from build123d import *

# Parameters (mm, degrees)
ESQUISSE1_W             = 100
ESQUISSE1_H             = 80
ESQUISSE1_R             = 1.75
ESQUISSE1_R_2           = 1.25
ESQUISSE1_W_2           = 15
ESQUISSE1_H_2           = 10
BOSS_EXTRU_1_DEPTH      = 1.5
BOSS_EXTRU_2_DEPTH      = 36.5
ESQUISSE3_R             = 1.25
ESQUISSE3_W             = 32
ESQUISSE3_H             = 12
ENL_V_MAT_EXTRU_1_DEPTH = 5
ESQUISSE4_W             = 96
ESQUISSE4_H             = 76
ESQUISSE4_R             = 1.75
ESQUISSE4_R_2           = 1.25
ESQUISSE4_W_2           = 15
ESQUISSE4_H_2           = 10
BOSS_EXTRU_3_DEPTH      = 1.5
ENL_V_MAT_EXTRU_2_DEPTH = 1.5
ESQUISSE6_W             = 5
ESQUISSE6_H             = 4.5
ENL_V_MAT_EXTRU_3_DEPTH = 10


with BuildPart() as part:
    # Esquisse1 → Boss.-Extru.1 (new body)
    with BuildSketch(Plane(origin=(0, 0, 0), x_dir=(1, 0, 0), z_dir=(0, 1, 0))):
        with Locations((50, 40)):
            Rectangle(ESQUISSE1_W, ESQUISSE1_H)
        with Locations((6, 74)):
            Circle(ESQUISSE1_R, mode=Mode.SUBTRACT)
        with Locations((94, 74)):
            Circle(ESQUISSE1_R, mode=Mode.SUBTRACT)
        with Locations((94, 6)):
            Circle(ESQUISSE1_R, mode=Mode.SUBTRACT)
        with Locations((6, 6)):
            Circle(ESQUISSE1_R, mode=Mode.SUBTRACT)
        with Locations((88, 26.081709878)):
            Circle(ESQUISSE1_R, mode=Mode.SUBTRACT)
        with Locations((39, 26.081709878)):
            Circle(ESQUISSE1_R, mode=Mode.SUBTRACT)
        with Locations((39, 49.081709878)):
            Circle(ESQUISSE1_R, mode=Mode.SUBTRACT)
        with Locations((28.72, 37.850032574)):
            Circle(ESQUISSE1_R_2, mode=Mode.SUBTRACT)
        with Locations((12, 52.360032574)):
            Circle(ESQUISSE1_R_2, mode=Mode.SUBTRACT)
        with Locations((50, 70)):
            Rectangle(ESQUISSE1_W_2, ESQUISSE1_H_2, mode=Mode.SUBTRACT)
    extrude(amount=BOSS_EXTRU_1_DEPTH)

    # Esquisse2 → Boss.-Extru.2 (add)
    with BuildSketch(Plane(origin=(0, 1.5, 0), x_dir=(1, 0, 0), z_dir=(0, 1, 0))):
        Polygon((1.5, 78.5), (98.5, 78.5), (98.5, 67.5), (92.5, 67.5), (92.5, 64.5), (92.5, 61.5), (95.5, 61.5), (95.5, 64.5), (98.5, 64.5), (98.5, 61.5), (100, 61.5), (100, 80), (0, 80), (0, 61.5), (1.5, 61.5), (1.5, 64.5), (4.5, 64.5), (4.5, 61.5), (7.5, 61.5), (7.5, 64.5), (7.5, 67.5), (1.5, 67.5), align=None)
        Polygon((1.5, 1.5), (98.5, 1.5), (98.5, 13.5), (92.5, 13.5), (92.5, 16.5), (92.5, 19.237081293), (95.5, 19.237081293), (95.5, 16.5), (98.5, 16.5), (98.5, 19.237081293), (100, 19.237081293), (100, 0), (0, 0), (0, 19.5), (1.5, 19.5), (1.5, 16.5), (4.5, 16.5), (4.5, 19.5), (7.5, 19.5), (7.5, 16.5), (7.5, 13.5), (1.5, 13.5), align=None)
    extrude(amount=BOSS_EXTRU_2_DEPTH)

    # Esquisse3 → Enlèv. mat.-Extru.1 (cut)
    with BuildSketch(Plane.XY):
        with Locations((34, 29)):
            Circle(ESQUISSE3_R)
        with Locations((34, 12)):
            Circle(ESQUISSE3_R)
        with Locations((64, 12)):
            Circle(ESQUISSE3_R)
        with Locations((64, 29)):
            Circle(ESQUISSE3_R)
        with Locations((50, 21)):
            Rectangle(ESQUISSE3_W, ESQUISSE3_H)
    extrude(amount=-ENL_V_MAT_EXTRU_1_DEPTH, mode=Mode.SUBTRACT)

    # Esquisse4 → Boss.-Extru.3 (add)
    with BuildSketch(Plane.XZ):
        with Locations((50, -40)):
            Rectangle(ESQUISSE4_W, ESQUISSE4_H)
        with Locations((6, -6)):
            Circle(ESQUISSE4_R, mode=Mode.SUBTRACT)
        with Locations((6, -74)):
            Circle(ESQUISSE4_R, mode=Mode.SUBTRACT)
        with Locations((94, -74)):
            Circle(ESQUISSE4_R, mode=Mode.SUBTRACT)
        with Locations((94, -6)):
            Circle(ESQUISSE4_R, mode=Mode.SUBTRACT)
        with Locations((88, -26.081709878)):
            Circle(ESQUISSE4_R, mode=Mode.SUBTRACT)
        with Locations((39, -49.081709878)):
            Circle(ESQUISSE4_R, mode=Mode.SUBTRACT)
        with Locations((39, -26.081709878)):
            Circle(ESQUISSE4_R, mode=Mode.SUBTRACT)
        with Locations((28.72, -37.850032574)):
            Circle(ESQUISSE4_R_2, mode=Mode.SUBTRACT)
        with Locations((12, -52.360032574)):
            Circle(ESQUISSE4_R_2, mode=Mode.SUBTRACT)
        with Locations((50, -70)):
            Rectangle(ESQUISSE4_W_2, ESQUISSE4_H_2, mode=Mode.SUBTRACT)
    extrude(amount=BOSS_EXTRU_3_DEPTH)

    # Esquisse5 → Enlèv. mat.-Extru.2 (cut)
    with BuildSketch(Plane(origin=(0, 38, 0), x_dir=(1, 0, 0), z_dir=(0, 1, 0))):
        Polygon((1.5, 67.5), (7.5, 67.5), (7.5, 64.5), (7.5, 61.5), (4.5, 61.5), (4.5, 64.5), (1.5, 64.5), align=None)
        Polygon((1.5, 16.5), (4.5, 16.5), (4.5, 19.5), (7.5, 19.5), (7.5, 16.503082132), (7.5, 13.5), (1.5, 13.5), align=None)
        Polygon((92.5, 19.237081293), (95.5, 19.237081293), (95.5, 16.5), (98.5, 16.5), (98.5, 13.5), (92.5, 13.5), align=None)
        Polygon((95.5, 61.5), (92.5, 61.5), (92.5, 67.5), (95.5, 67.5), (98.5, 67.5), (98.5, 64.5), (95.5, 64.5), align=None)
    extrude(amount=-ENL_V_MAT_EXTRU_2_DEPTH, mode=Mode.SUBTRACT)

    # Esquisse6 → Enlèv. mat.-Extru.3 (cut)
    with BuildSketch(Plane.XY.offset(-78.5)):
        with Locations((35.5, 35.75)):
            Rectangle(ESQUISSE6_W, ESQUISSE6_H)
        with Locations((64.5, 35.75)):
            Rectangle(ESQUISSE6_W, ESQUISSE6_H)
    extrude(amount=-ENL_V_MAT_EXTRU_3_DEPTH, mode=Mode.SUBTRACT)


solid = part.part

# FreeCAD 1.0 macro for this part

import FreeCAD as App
import Part
import Sketcher
from FreeCAD import Vector
Q = App.Units.Quantity


def add_polygon(sketch, points):
    """Adds a closed chain of lines whose ends are joined by coincident constraints."""
    first, n = sketch.GeometryCount, len(points)
    for a, b in zip(points, points[1:] + points[:1]):
        sketch.addGeometry(Part.LineSegment(App.Vector(*a, 0), App.Vector(*b, 0)), False)
    for i in range(n):
        sketch.addConstraint(Sketcher.Constraint("Coincident", first + i, 2, first + (i + 1) % n, 1))

doc = App.newDocument("Part")
body = doc.addObject("PartDesign::Body", "Body")

sketch1 = doc.addObject("Sketcher::SketchObject", "Sketch")
body.addObject(sketch1)
sketch1.AttachmentSupport = (doc.XZ_Plane, [""])
sketch1.MapMode = "FlatFace"
add_polygon(sketch1, [(0, -80), (0, 0), (100, 0), (100, -80)])
sketch1.addGeometry(Part.Circle(Vector(6, -6, 0), Vector(0, 0, 1), 1.8), False)
sketch1.addGeometry(Part.Circle(Vector(39, -26.1, 0), Vector(0, 0, 1), 1.8), False)
sketch1.addGeometry(Part.Circle(Vector(28.7, -37.9, 0), Vector(0, 0, 1), 1.2), False)
sketch1.addGeometry(Part.Circle(Vector(94, -6, 0), Vector(0, 0, 1), 1.8), False)
sketch1.addGeometry(Part.Circle(Vector(88, -26.1, 0), Vector(0, 0, 1), 1.8), False)
sketch1.addGeometry(Part.Circle(Vector(12, -52.4, 0), Vector(0, 0, 1), 1.2), False)
sketch1.addGeometry(Part.Circle(Vector(39, -49.1, 0), Vector(0, 0, 1), 1.8), False)
sketch1.addGeometry(Part.Circle(Vector(6, -74, 0), Vector(0, 0, 1), 1.8), False)
add_polygon(sketch1, [(57.5, -65), (42.5, -65), (42.5, -75), (57.5, -75)])
sketch1.addGeometry(Part.Circle(Vector(94, -74, 0), Vector(0, 0, 1), 1.8), False)
sketch1.addConstraint([
    Sketcher.Constraint("Vertical", 0),
    Sketcher.Constraint("Horizontal", 1),
    Sketcher.Constraint("Vertical", 2),
    Sketcher.Constraint("Horizontal", 3),
    Sketcher.Constraint("Horizontal", 12),
    Sketcher.Constraint("Vertical", 13),
    Sketcher.Constraint("Horizontal", 14),
    Sketcher.Constraint("Vertical", 15),
    Sketcher.Constraint("Coincident", 0, 2, -1, 1),
    Sketcher.Constraint("Equal", 4, 5),
    Sketcher.Constraint("Equal", 5, 7),
    Sketcher.Constraint("Equal", 7, 8),
    Sketcher.Constraint("Equal", 6, 9),
    Sketcher.Constraint("Equal", 8, 10),
    Sketcher.Constraint("Equal", 10, 11),
    Sketcher.Constraint("Equal", 11, 16),
    Sketcher.Constraint("Horizontal", 4, 3, 7, 3),
    Sketcher.Constraint("Horizontal", 5, 3, 8, 3),
    Sketcher.Constraint("Horizontal", 11, 3, 16, 3),
    Sketcher.Constraint("Vertical", 5, 3, 10, 3),
    Sketcher.Constraint("Vertical", 4, 3, 11, 3),
    Sketcher.Constraint("Vertical", 7, 3, 16, 3),
    Sketcher.Constraint("Diameter", 4, Q("3.5 mm")),
    Sketcher.Constraint("Diameter", 6, Q("2.5 mm")),
    Sketcher.Constraint("DistanceX", 1, 1, 1, 2, Q("100 mm")),
    Sketcher.Constraint("DistanceX", 12, 2, 12, 1, Q("15 mm")),
    Sketcher.Constraint("DistanceY", 0, 1, 0, 2, Q("80 mm")),
    Sketcher.Constraint("DistanceY", 13, 2, 13, 1, Q("10 mm")),
    Sketcher.Constraint("DistanceX", -1, 1, 4, 3, Q("6 mm")),
    Sketcher.Constraint("DistanceY", 4, 3, -1, 1, Q("6 mm")),
    Sketcher.Constraint("DistanceX", -1, 1, 5, 3, Q("39 mm")),
    Sketcher.Constraint("DistanceX", -1, 1, 7, 3, Q("94 mm")),
    Sketcher.Constraint("DistanceX", -1, 1, 8, 3, Q("88 mm")),
    Sketcher.Constraint("DistanceX", -1, 1, 9, 3, Q("12 mm")),
    Sketcher.Constraint("DistanceY", 11, 3, -1, 1, Q("74 mm")),
    Sketcher.Constraint("DistanceY", 12, 2, -1, 1, Q("65 mm")),
    Sketcher.Constraint("DistanceY", 10, 3, 5, 3, Q("23 mm")),
    Sketcher.Constraint("DistanceX", -1, 1, 12, 2, Q("42.5 mm")),
    Sketcher.Constraint("DistanceX", -1, 1, 6, 3, Q("28.72 mm")),
    Sketcher.Constraint("DistanceY", 9, 3, 6, 3, Q("14.51 mm")),
    Sketcher.Constraint("DistanceY", 5, 3, -1, 1, Q("26.08171 mm")),
    Sketcher.Constraint("DistanceY", 6, 3, -1, 1, Q("37.850033 mm")),
])
pad1 = doc.addObject("PartDesign::Pad", "Pad")
body.addObject(pad1)
pad1.Profile = sketch1
pad1.Length = 1.5
pad1.Reversed = True

sketch2 = doc.addObject("Sketcher::SketchObject", "Sketch001")
body.addObject(sketch2)
sketch2.AttachmentSupport = (doc.XZ_Plane, [""])
sketch2.MapMode = "FlatFace"
sketch2.AttachmentOffset = App.Placement(Vector(0, 0, -1.5), App.Rotation())
add_polygon(sketch2, [(1.5, -78.5), (98.5, -78.5), (98.5, -67.5), (92.5, -67.5), (92.5, -61.5), (95.5, -61.5), (95.5, -64.5), (98.5, -64.5), (98.5, -61.5), (100, -61.5), (100, -80), (0, -80), (0, -61.5), (1.5, -61.5), (1.5, -64.5), (4.5, -64.5), (4.5, -61.5), (7.5, -61.5), (7.5, -67.5), (1.5, -67.5)])
add_polygon(sketch2, [(98.5, -1.5), (1.5, -1.5), (1.5, -13.5), (7.5, -13.5), (7.5, -19.5), (4.5, -19.5), (4.5, -16.5), (1.5, -16.5), (1.5, -19.5), (0, -19.5), (0, 0), (100, 0), (100, -19.2), (98.5, -19.2), (98.5, -16.5), (95.5, -16.5), (95.5, -19.2), (92.5, -19.2), (92.5, -13.5), (98.5, -13.5)])
sketch2.addConstraint([
    Sketcher.Constraint("Horizontal", 0),
    Sketcher.Constraint("Vertical", 1),
    Sketcher.Constraint("Horizontal", 2),
    Sketcher.Constraint("Vertical", 3),
    Sketcher.Constraint("Horizontal", 4),
    Sketcher.Constraint("Vertical", 5),
    Sketcher.Constraint("Horizontal", 6),
    Sketcher.Constraint("Vertical", 7),
    Sketcher.Constraint("Horizontal", 8),
    Sketcher.Constraint("Vertical", 9),
    Sketcher.Constraint("Horizontal", 10),
    Sketcher.Constraint("Vertical", 11),
    Sketcher.Constraint("Horizontal", 12),
    Sketcher.Constraint("Vertical", 13),
    Sketcher.Constraint("Horizontal", 14),
    Sketcher.Constraint("Vertical", 15),
    Sketcher.Constraint("Horizontal", 16),
    Sketcher.Constraint("Vertical", 17),
    Sketcher.Constraint("Horizontal", 18),
    Sketcher.Constraint("Vertical", 19),
    Sketcher.Constraint("Horizontal", 20),
    Sketcher.Constraint("Vertical", 21),
    Sketcher.Constraint("Horizontal", 22),
    Sketcher.Constraint("Vertical", 23),
    Sketcher.Constraint("Horizontal", 24),
    Sketcher.Constraint("Vertical", 25),
    Sketcher.Constraint("Horizontal", 26),
    Sketcher.Constraint("Vertical", 27),
    Sketcher.Constraint("Horizontal", 28),
    Sketcher.Constraint("Vertical", 29),
    Sketcher.Constraint("Horizontal", 30),
    Sketcher.Constraint("Vertical", 31),
    Sketcher.Constraint("Horizontal", 32),
    Sketcher.Constraint("Vertical", 33),
    Sketcher.Constraint("Horizontal", 34),
    Sketcher.Constraint("Vertical", 35),
    Sketcher.Constraint("Horizontal", 36),
    Sketcher.Constraint("Vertical", 37),
    Sketcher.Constraint("Horizontal", 38),
    Sketcher.Constraint("Vertical", 39),
    Sketcher.Constraint("Coincident", 29, 2, -1, 1),
    Sketcher.Constraint("PointOnObject", 10, 2, -2),
    Sketcher.Constraint("Horizontal", 4, 2, 7, 2),
    Sketcher.Constraint("Horizontal", 8, 2, 11, 2),
    Sketcher.Constraint("Horizontal", 6, 2, 13, 2),
    Sketcher.Constraint("Horizontal", 12, 2, 15, 2),
    Sketcher.Constraint("Horizontal", 2, 2, 17, 2),
    Sketcher.Constraint("Horizontal", 24, 2, 27, 2),
    Sketcher.Constraint("Horizontal", 26, 2, 33, 2),
    Sketcher.Constraint("Horizontal", 32, 2, 35, 2),
    Sketcher.Constraint("Horizontal", 22, 2, 37, 2),
    Sketcher.Constraint("Vertical", 1, 2, 6, 2),
    Sketcher.Constraint("Vertical", 13, 2, 18, 2),
    Sketcher.Constraint("Vertical", 19, 2, 20, 2),
    Sketcher.Constraint("Vertical", 17, 2, 22, 2),
    Sketcher.Constraint("Vertical", 15, 2, 24, 2),
    Sketcher.Constraint("Vertical", 21, 2, 26, 2),
    Sketcher.Constraint("Vertical", 9, 2, 30, 2),
    Sketcher.Constraint("Vertical", 7, 2, 32, 2),
    Sketcher.Constraint("Vertical", 5, 2, 34, 2),
    Sketcher.Constraint("Vertical", 3, 2, 36, 2),
    Sketcher.Constraint("Vertical", 33, 2, 38, 2),
    Sketcher.Constraint("Equal", 4, 6),
    Sketcher.Constraint("Equal", 8, 12),
    Sketcher.Constraint("Equal", 6, 14),
    Sketcher.Constraint("Equal", 14, 16),
    Sketcher.Constraint("Equal", 38, 3),
    Sketcher.Constraint("Equal", 36, 5),
    Sketcher.Constraint("Equal", 17, 23),
    Sketcher.Constraint("Equal", 15, 25),
    Sketcher.Constraint("DistanceX", 0, 1, 0, 2, Q("97 mm")),
    Sketcher.Constraint("DistanceX", 2, 2, 2, 1, Q("6 mm")),
    Sketcher.Constraint("DistanceX", 10, 2, 10, 1, Q("100 mm")),
    Sketcher.Constraint("DistanceY", 1, 1, 1, 2, Q("11 mm")),
    Sketcher.Constraint("DistanceY", 21, 2, 21, 1, Q("12 mm")),
    Sketcher.Constraint("DistanceY", 9, 2, 9, 1, Q("18.5 mm")),
    Sketcher.Constraint("DistanceY", 29, 1, 29, 2, Q("19.5 mm")),
    Sketcher.Constraint("DistanceY", 9, 2, -1, 1, Q("80 mm")),
    Sketcher.Constraint("DistanceY", 31, 2, 31, 1, Q("19.237081 mm")),
])
pad2 = doc.addObject("PartDesign::Pad", "Pad001")
body.addObject(pad2)
pad2.Profile = sketch2
pad2.Length = 36.5
pad2.Reversed = True

sketch3 = doc.addObject("Sketcher::SketchObject", "Sketch002")
body.addObject(sketch3)
sketch3.AttachmentSupport = (doc.XY_Plane, [""])
sketch3.MapMode = "FlatFace"
sketch3.addGeometry(Part.Circle(Vector(34, 29, 0), Vector(0, 0, 1), 1.2), False)
sketch3.addGeometry(Part.Circle(Vector(34, 12, 0), Vector(0, 0, 1), 1.2), False)
sketch3.addGeometry(Part.Circle(Vector(64, 12, 0), Vector(0, 0, 1), 1.2), False)
sketch3.addGeometry(Part.Circle(Vector(64, 29, 0), Vector(0, 0, 1), 1.2), False)
add_polygon(sketch3, [(34, 27), (34, 15), (66, 15), (66, 27)])
sketch3.addConstraint([
    Sketcher.Constraint("Vertical", 4),
    Sketcher.Constraint("Horizontal", 5),
    Sketcher.Constraint("Vertical", 6),
    Sketcher.Constraint("Horizontal", 7),
    Sketcher.Constraint("Equal", 0, 1),
    Sketcher.Constraint("Equal", 1, 2),
    Sketcher.Constraint("Equal", 2, 3),
    Sketcher.Constraint("Horizontal", 1, 3, 2, 3),
    Sketcher.Constraint("Horizontal", 0, 3, 3, 3),
    Sketcher.Constraint("Vertical", 0, 3, 1, 3),
    Sketcher.Constraint("Vertical", 2, 3, 3, 3),
    Sketcher.Constraint("Vertical", 1, 3, 4, 2),
    Sketcher.Constraint("Diameter", 0, Q("2.5 mm")),
    Sketcher.Constraint("DistanceX", 5, 1, 5, 2, Q("32 mm")),
    Sketcher.Constraint("DistanceY", 4, 2, 4, 1, Q("12 mm")),
    Sketcher.Constraint("DistanceX", -1, 1, 0, 3, Q("34 mm")),
    Sketcher.Constraint("DistanceY", -1, 1, 0, 3, Q("29 mm")),
    Sketcher.Constraint("DistanceY", -1, 1, 1, 3, Q("12 mm")),
    Sketcher.Constraint("DistanceX", -1, 1, 2, 3, Q("64 mm")),
    Sketcher.Constraint("DistanceY", -1, 1, 4, 2, Q("15 mm")),
])
pocket1 = doc.addObject("PartDesign::Pocket", "Pocket")
body.addObject(pocket1)
pocket1.Profile = sketch3
pocket1.Length = 5

sketch4 = doc.addObject("Sketcher::SketchObject", "Sketch003")
body.addObject(sketch4)
sketch4.AttachmentSupport = (doc.XZ_Plane, [""])
sketch4.MapMode = "FlatFace"
add_polygon(sketch4, [(2, -2), (2, -78), (98, -78), (98, -2)])
sketch4.addGeometry(Part.Circle(Vector(6, -74, 0), Vector(0, 0, 1), 1.8), False)
sketch4.addGeometry(Part.Circle(Vector(12, -52.4, 0), Vector(0, 0, 1), 1.2), False)
sketch4.addGeometry(Part.Circle(Vector(39, -49.1, 0), Vector(0, 0, 1), 1.8), False)
add_polygon(sketch4, [(57.5, -75), (42.5, -75), (42.5, -65), (57.5, -65)])
sketch4.addGeometry(Part.Circle(Vector(94, -74, 0), Vector(0, 0, 1), 1.8), False)
sketch4.addGeometry(Part.Circle(Vector(28.7, -37.9, 0), Vector(0, 0, 1), 1.2), False)
sketch4.addGeometry(Part.Circle(Vector(39, -26.1, 0), Vector(0, 0, 1), 1.8), False)
sketch4.addGeometry(Part.Circle(Vector(6, -6, 0), Vector(0, 0, 1), 1.8), False)
sketch4.addGeometry(Part.Circle(Vector(88, -26.1, 0), Vector(0, 0, 1), 1.8), False)
sketch4.addGeometry(Part.Circle(Vector(94, -6, 0), Vector(0, 0, 1), 1.8), False)
sketch4.addConstraint([
    Sketcher.Constraint("Vertical", 0),
    Sketcher.Constraint("Horizontal", 1),
    Sketcher.Constraint("Vertical", 2),
    Sketcher.Constraint("Horizontal", 3),
    Sketcher.Constraint("Horizontal", 7),
    Sketcher.Constraint("Vertical", 8),
    Sketcher.Constraint("Horizontal", 9),
    Sketcher.Constraint("Vertical", 10),
    Sketcher.Constraint("Equal", 4, 6),
    Sketcher.Constraint("Equal", 6, 11),
    Sketcher.Constraint("Equal", 5, 12),
    Sketcher.Constraint("Equal", 11, 13),
    Sketcher.Constraint("Equal", 13, 14),
    Sketcher.Constraint("Equal", 14, 15),
    Sketcher.Constraint("Equal", 15, 16),
    Sketcher.Constraint("Horizontal", 4, 3, 11, 3),
    Sketcher.Constraint("Horizontal", 13, 3, 15, 3),
    Sketcher.Constraint("Horizontal", 14, 3, 16, 3),
    Sketcher.Constraint("Vertical", 6, 3, 13, 3),
    Sketcher.Constraint("Vertical", 4, 3, 14, 3),
    Sketcher.Constraint("Vertical", 11, 3, 16, 3),
    Sketcher.Constraint("Diameter", 4, Q("3.5 mm")),
    Sketcher.Constraint("Diameter", 5, Q("2.5 mm")),
    Sketcher.Constraint("DistanceX", 1, 1, 1, 2, Q("96 mm")),
    Sketcher.Constraint("DistanceX", 7, 2, 7, 1, Q("15 mm")),
    Sketcher.Constraint("DistanceY", 0, 2, 0, 1, Q("76 mm")),
    Sketcher.Constraint("DistanceY", 8, 1, 8, 2, Q("10 mm")),
    Sketcher.Constraint("DistanceX", -1, 1, 4, 3, Q("6 mm")),
    Sketcher.Constraint("DistanceY", 4, 3, -1, 1, Q("74 mm")),
    Sketcher.Constraint("DistanceX", -1, 1, 5, 3, Q("12 mm")),
    Sketcher.Constraint("DistanceX", -1, 1, 6, 3, Q("39 mm")),
    Sketcher.Constraint("DistanceX", -1, 1, 11, 3, Q("94 mm")),
    Sketcher.Constraint("DistanceY", 14, 3, -1, 1, Q("6 mm")),
    Sketcher.Constraint("DistanceX", -1, 1, 15, 3, Q("88 mm")),
    Sketcher.Constraint("DistanceX", -1, 1, 0, 2, Q("2 mm")),
    Sketcher.Constraint("DistanceY", 0, 2, -1, 1, Q("78 mm")),
    Sketcher.Constraint("DistanceY", 7, 2, -1, 1, Q("75 mm")),
    Sketcher.Constraint("DistanceY", 6, 3, 13, 3, Q("23 mm")),
    Sketcher.Constraint("DistanceX", -1, 1, 7, 2, Q("42.5 mm")),
    Sketcher.Constraint("DistanceX", -1, 1, 12, 3, Q("28.72 mm")),
    Sketcher.Constraint("DistanceY", 5, 3, 12, 3, Q("14.51 mm")),
    Sketcher.Constraint("DistanceY", 6, 3, -1, 1, Q("49.08171 mm")),
    Sketcher.Constraint("DistanceY", 5, 3, -1, 1, Q("52.360033 mm")),
])
pad3 = doc.addObject("PartDesign::Pad", "Pad002")
body.addObject(pad3)
pad3.Profile = sketch4
pad3.Length = 1.5

sketch5 = doc.addObject("Sketcher::SketchObject", "Sketch004")
body.addObject(sketch5)
sketch5.AttachmentSupport = (doc.XZ_Plane, [""])
sketch5.MapMode = "FlatFace"
sketch5.AttachmentOffset = App.Placement(Vector(0, 0, -38), App.Rotation())
add_polygon(sketch5, [(7.5, -67.5), (1.5, -67.5), (1.5, -64.5), (4.5, -64.5), (4.5, -61.5), (7.5, -61.5)])
add_polygon(sketch5, [(4.5, -16.5), (1.5, -16.5), (1.5, -13.5), (7.5, -13.5), (7.5, -19.5), (4.5, -19.5)])
add_polygon(sketch5, [(95.5, -19.2), (92.5, -19.2), (92.5, -13.5), (98.5, -13.5), (98.5, -16.5), (95.5, -16.5)])
add_polygon(sketch5, [(92.5, -61.5), (95.5, -61.5), (95.5, -64.5), (98.5, -64.5), (98.5, -67.5), (92.5, -67.5)])
sketch5.addConstraint([
    Sketcher.Constraint("Horizontal", 0),
    Sketcher.Constraint("Vertical", 1),
    Sketcher.Constraint("Horizontal", 2),
    Sketcher.Constraint("Vertical", 3),
    Sketcher.Constraint("Horizontal", 4),
    Sketcher.Constraint("Vertical", 5),
    Sketcher.Constraint("Horizontal", 6),
    Sketcher.Constraint("Vertical", 7),
    Sketcher.Constraint("Horizontal", 8),
    Sketcher.Constraint("Vertical", 9),
    Sketcher.Constraint("Horizontal", 10),
    Sketcher.Constraint("Vertical", 11),
    Sketcher.Constraint("Horizontal", 12),
    Sketcher.Constraint("Vertical", 13),
    Sketcher.Constraint("Horizontal", 14),
    Sketcher.Constraint("Vertical", 15),
    Sketcher.Constraint("Horizontal", 16),
    Sketcher.Constraint("Vertical", 17),
    Sketcher.Constraint("Horizontal", 18),
    Sketcher.Constraint("Vertical", 19),
    Sketcher.Constraint("Horizontal", 20),
    Sketcher.Constraint("Vertical", 21),
    Sketcher.Constraint("Horizontal", 22),
    Sketcher.Constraint("Vertical", 23),
    Sketcher.Constraint("Horizontal", 8, 2, 13, 2),
    Sketcher.Constraint("Horizontal", 11, 2, 15, 2),
    Sketcher.Constraint("Horizontal", 4, 2, 18, 2),
    Sketcher.Constraint("Horizontal", 2, 2, 19, 2),
    Sketcher.Constraint("Horizontal", 5, 2, 21, 2),
    Sketcher.Constraint("Vertical", 1, 2, 6, 2),
    Sketcher.Constraint("Vertical", 5, 2, 8, 2),
    Sketcher.Constraint("Vertical", 3, 2, 10, 2),
    Sketcher.Constraint("Vertical", 17, 2, 18, 2),
    Sketcher.Constraint("Vertical", 15, 2, 20, 2),
    Sketcher.Constraint("Vertical", 13, 2, 22, 2),
    Sketcher.Constraint("Equal", 2, 4),
    Sketcher.Constraint("Equal", 10, 12),
    Sketcher.Constraint("Equal", 8, 14),
    Sketcher.Constraint("Equal", 20, 1),
    Sketcher.Constraint("Equal", 1, 3),
    Sketcher.Constraint("Equal", 3, 7),
    Sketcher.Constraint("Equal", 5, 9),
    Sketcher.Constraint("DistanceX", 0, 2, 0, 1, Q("6 mm")),
    Sketcher.Constraint("DistanceY", 3, 2, 6, 2, Q("45 mm")),
    Sketcher.Constraint("DistanceX", 9, 2, 12, 2, Q("85 mm")),
    Sketcher.Constraint("DistanceX", -1, 1, 0, 2, Q("1.5 mm")),
    Sketcher.Constraint("DistanceY", 0, 2, -1, 1, Q("67.5 mm")),
    Sketcher.Constraint("DistanceY", 13, 1, 13, 2, Q("5.737081 mm")),
])
pocket2 = doc.addObject("PartDesign::Pocket", "Pocket001")
body.addObject(pocket2)
pocket2.Profile = sketch5
pocket2.Length = 1.5
pocket2.Reversed = True

sketch6 = doc.addObject("Sketcher::SketchObject", "Sketch005")
body.addObject(sketch6)
sketch6.AttachmentSupport = (doc.XY_Plane, [""])
sketch6.MapMode = "FlatFace"
sketch6.AttachmentOffset = App.Placement(Vector(0, 0, -78.5), App.Rotation())
add_polygon(sketch6, [(33, 38), (33, 33.5), (38, 33.5), (38, 38)])
add_polygon(sketch6, [(62, 38), (62, 33.5), (67, 33.5), (67, 38)])
sketch6.addConstraint([
    Sketcher.Constraint("Vertical", 0),
    Sketcher.Constraint("Horizontal", 1),
    Sketcher.Constraint("Vertical", 2),
    Sketcher.Constraint("Horizontal", 3),
    Sketcher.Constraint("Vertical", 4),
    Sketcher.Constraint("Horizontal", 5),
    Sketcher.Constraint("Vertical", 6),
    Sketcher.Constraint("Horizontal", 7),
    Sketcher.Constraint("Horizontal", 1, 2, 4, 2),
    Sketcher.Constraint("Horizontal", 3, 2, 6, 2),
    Sketcher.Constraint("Equal", 3, 5),
    Sketcher.Constraint("DistanceX", 1, 1, 1, 2, Q("5 mm")),
    Sketcher.Constraint("DistanceY", 0, 2, 0, 1, Q("4.5 mm")),
    Sketcher.Constraint("DistanceX", -1, 1, 0, 2, Q("33 mm")),
    Sketcher.Constraint("DistanceY", -1, 1, 2, 2, Q("38 mm")),
    Sketcher.Constraint("DistanceX", -1, 1, 4, 2, Q("62 mm")),
])
pocket3 = doc.addObject("PartDesign::Pocket", "Pocket002")
body.addObject(pocket3)
pocket3.Profile = sketch6
pocket3.Length = 10

doc.recompute()
